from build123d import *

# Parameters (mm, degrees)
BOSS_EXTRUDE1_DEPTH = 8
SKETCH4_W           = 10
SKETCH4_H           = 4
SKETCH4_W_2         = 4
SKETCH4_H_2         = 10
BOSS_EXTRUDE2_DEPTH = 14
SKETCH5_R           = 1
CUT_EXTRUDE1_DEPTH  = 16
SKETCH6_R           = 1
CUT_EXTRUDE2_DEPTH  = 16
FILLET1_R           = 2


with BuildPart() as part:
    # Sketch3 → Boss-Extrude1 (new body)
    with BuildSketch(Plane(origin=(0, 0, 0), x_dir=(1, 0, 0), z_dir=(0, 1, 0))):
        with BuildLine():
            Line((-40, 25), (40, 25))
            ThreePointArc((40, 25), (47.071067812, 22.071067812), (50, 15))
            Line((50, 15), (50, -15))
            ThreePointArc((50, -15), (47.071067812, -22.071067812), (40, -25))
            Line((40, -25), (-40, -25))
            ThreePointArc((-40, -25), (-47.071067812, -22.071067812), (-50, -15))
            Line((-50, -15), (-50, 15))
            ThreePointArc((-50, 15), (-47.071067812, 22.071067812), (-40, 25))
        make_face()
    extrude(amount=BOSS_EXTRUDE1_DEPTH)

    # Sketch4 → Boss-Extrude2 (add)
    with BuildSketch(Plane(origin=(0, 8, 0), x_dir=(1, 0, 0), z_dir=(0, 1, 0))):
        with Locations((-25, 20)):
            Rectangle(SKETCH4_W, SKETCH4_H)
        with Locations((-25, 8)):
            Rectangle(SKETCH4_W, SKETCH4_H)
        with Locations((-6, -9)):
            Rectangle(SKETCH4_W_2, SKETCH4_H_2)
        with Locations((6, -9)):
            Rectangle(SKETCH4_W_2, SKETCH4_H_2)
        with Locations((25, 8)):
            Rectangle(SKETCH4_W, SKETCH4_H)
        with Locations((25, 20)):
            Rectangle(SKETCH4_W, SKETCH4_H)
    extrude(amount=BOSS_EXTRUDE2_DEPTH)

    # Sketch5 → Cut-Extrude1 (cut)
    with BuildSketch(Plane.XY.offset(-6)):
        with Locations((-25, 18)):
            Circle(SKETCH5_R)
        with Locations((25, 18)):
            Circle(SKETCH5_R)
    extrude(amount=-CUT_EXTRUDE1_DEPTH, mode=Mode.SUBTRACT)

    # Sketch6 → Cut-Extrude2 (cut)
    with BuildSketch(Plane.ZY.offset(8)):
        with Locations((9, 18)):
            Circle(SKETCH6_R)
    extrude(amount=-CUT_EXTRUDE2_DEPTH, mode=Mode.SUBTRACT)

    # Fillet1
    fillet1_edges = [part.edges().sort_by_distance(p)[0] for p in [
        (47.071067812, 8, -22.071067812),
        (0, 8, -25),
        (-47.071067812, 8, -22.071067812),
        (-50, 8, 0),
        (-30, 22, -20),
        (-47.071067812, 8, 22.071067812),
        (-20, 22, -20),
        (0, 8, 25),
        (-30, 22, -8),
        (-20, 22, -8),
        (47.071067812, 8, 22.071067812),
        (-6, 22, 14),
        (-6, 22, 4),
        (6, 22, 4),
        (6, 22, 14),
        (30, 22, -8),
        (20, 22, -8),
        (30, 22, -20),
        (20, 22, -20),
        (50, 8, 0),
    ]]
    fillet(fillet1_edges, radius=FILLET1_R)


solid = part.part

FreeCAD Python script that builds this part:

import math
import FreeCAD as App
import Part
import Sketcher


def edges_at(feature, points):
    """Names of the edges that pass closest to the given points."""
    edges = feature.Shape.Edges
    near = lambda p: min(range(len(edges)), key=lambda i: edges[i].distToShape(Part.Vertex(*p))[0])
    return sorted({f"Edge{near(p) + 1}" for p in points})

doc = App.newDocument("Part")
params = doc.addObject("Spreadsheet::Sheet", "Params")
for row, (alias, value) in enumerate([
    ("sketch1_radius", "10 mm"),
    ("sketch1_width", "80 mm"),
    ("sketch1_height", "30 mm"),
    ("pad1_length", "8 mm"),
    ("sketch2_width", "10 mm"),
    ("sketch2_width2", "4 mm"),
    ("pad2_length", "14 mm"),
    ("sketch3_diameter", "2 mm"),
    ("pocket1_length", "16 mm"),
    ("sketch4_diameter", "2 mm"),
    ("pocket2_length", "16 mm"),
    ("fillet_radius", "2 mm"),
], start=1):
    params.set(f"A{row}", alias)
    params.set(f"B{row}", "=" + value)
    params.setAlias(f"B{row}", alias)

body = doc.addObject("PartDesign::Body", "Body")

# Sketch on XZ plane
sketch1 = body.newObject("Sketcher::SketchObject", "Sketch")
sketch1.AttachmentSupport = (doc.getObject("XZ_Plane"), [""])
sketch1.MapMode = "FlatFace"
sketch1.addGeometry(Part.LineSegment(App.Vector(40, -25, 0), App.Vector(-40, -25, 0)), False)
sketch1.addGeometry(Part.ArcOfCircle(Part.Circle(App.Vector(-40, -15, 0), App.Vector(0, 0, 1), 10), math.radians(180), math.radians(270)), False)
sketch1.addGeometry(Part.LineSegment(App.Vector(-50, -15, 0), App.Vector(-50, 15, 0)), False)
sketch1.addGeometry(Part.ArcOfCircle(Part.Circle(App.Vector(-40, 15, 0), App.Vector(0, 0, 1), 10), math.radians(90), math.radians(180)), False)
sketch1.addGeometry(Part.LineSegment(App.Vector(-40, 25, 0), App.Vector(40, 25, 0)), False)
sketch1.addGeometry(Part.ArcOfCircle(Part.Circle(App.Vector(40, 15, 0), App.Vector(0, 0, 1), 10), math.radians(0), math.radians(90)), False)
sketch1.addGeometry(Part.LineSegment(App.Vector(50, 15, 0), App.Vector(50, -15, 0)), False)
sketch1.addGeometry(Part.ArcOfCircle(Part.Circle(App.Vector(40, -15, 0), App.Vector(0, 0, 1), 10), math.radians(-90), math.radians(0)), False)
sketch1.addConstraint(Sketcher.Constraint("Tangent", 0, 2, 1, 2))
sketch1.addConstraint(Sketcher.Constraint("Tangent", 1, 1, 2, 1))
sketch1.addConstraint(Sketcher.Constraint("Tangent", 2, 2, 3, 2))
sketch1.addConstraint(Sketcher.Constraint("Tangent", 3, 1, 4, 1))
sketch1.addConstraint(Sketcher.Constraint("Tangent", 4, 2, 5, 2))
sketch1.addConstraint(Sketcher.Constraint("Tangent", 5, 1, 6, 1))
sketch1.addConstraint(Sketcher.Constraint("Tangent", 6, 2, 7, 2))
sketch1.addConstraint(Sketcher.Constraint("Tangent", 7, 1, 0, 1))
sketch1.addConstraint(Sketcher.Constraint("Horizontal", 0))
sketch1.addConstraint(Sketcher.Constraint("Vertical", 2))
sketch1.addConstraint(Sketcher.Constraint("Horizontal", 4))
sketch1.addConstraint(Sketcher.Constraint("Vertical", 6))
sketch1.addConstraint(Sketcher.Constraint("Equal", 1, 3))
sketch1.addConstraint(Sketcher.Constraint("Equal", 3, 5))
sketch1.addConstraint(Sketcher.Constraint("Equal", 5, 7))
sketch1.addConstraint(Sketcher.Constraint("Symmetric", 1, 3, 5, 3, -1, 1))
sketch1.addConstraint(Sketcher.Constraint("Radius", 1, 10.0))
sketch1.addConstraint(Sketcher.Constraint("DistanceX", 0, 2, 0, 1, 80.0))
sketch1.addConstraint(Sketcher.Constraint("DistanceY", 2, 1, 2, 2, 30.0))
sketch1.setExpression("Constraints[16]", "Params.sketch1_radius")
sketch1.setExpression("Constraints[17]", "Params.sketch1_width")
sketch1.setExpression("Constraints[18]", "Params.sketch1_height")
pad1 = body.newObject("PartDesign::Pad", "Pad")
pad1.Profile = sketch1
pad1.setExpression("Length", "Params.pad1_length")
pad1.Reversed = True

# Sketch on XZ plane
sketch2 = body.newObject("Sketcher::SketchObject", "Sketch001")
sketch2.AttachmentSupport = (doc.getObject("XZ_Plane"), [""])
sketch2.MapMode = "FlatFace"
sketch2.AttachmentOffset = App.Placement(App.Vector(0, 0, -8), App.Rotation())
sketch2.addGeometry(Part.LineSegment(App.Vector(-30, -22, 0), App.Vector(-30, -18, 0)), False)
sketch2.addGeometry(Part.LineSegment(App.Vector(-30, -18, 0), App.Vector(-20, -18, 0)), False)
sketch2.addGeometry(Part.LineSegment(App.Vector(-20, -18, 0), App.Vector(-20, -22, 0)), False)
sketch2.addGeometry(Part.LineSegment(App.Vector(-20, -22, 0), App.Vector(-30, -22, 0)), False)
sketch2.addGeometry(Part.LineSegment(App.Vector(-30, -10, 0), App.Vector(-30, -6, 0)), False)
sketch2.addGeometry(Part.LineSegment(App.Vector(-30, -6, 0), App.Vector(-20, -6, 0)), False)
sketch2.addGeometry(Part.LineSegment(App.Vector(-20, -6, 0), App.Vector(-20, -10, 0)), False)
sketch2.addGeometry(Part.LineSegment(App.Vector(-20, -10, 0), App.Vector(-30, -10, 0)), False)
sketch2.addGeometry(Part.LineSegment(App.Vector(-8, 4, 0), App.Vector(-8, 14, 0)), False)
sketch2.addGeometry(Part.LineSegment(App.Vector(-8, 14, 0), App.Vector(-4, 14, 0)), False)
sketch2.addGeometry(Part.LineSegment(App.Vector(-4, 14, 0), App.Vector(-4, 4, 0)), False)
sketch2.addGeometry(Part.LineSegment(App.Vector(-4, 4, 0), App.Vector(-8, 4, 0)), False)
sketch2.addGeometry(Part.LineSegment(App.Vector(4, 4, 0), App.Vector(4, 14, 0)), False)
sketch2.addGeometry(Part.LineSegment(App.Vector(4, 14, 0), App.Vector(8, 14, 0)), False)
sketch2.addGeometry(Part.LineSegment(App.Vector(8, 14, 0), App.Vector(8, 4, 0)), False)
sketch2.addGeometry(Part.LineSegment(App.Vector(8, 4, 0), App.Vector(4, 4, 0)), False)
sketch2.addGeometry(Part.LineSegment(App.Vector(20, -10, 0), App.Vector(20, -6, 0)), False)
sketch2.addGeometry(Part.LineSegment(App.Vector(20, -6, 0), App.Vector(30, -6, 0)), False)
sketch2.addGeometry(Part.LineSegment(App.Vector(30, -6, 0), App.Vector(30, -10, 0)), False)
sketch2.addGeometry(Part.LineSegment(App.Vector(30, -10, 0), App.Vector(20, -10, 0)), False)
sketch2.addGeometry(Part.LineSegment(App.Vector(20, -22, 0), App.Vector(20, -18, 0)), False)
sketch2.addGeometry(Part.LineSegment(App.Vector(20, -18, 0), App.Vector(30, -18, 0)), False)
sketch2.addGeometry(Part.LineSegment(App.Vector(30, -18, 0), App.Vector(30, -22, 0)), False)
sketch2.addGeometry(Part.LineSegment(App.Vector(30, -22, 0), App.Vector(20, -22, 0)), False)
sketch2.addConstraint(Sketcher.Constraint("Coincident", 0, 2, 1, 1))
sketch2.addConstraint(Sketcher.Constraint("Coincident", 1, 2, 2, 1))
sketch2.addConstraint(Sketcher.Constraint("Coincident", 2, 2, 3, 1))
sketch2.addConstraint(Sketcher.Constraint("Coincident", 3, 2, 0, 1))
sketch2.addConstraint(Sketcher.Constraint("Coincident", 4, 2, 5, 1))
sketch2.addConstraint(Sketcher.Constraint("Coincident", 5, 2, 6, 1))
sketch2.addConstraint(Sketcher.Constraint("Coincident", 6, 2, 7, 1))
sketch2.addConstraint(Sketcher.Constraint("Coincident", 7, 2, 4, 1))
sketch2.addConstraint(Sketcher.Constraint("Coincident", 8, 2, 9, 1))
sketch2.addConstraint(Sketcher.Constraint("Coincident", 9, 2, 10, 1))
sketch2.addConstraint(Sketcher.Constraint("Coincident", 10, 2, 11, 1))
sketch2.addConstraint(Sketcher.Constraint("Coincident", 11, 2, 8, 1))
sketch2.addConstraint(Sketcher.Constraint("Coincident", 12, 2, 13, 1))
sketch2.addConstraint(Sketcher.Constraint("Coincident", 13, 2, 14, 1))
sketch2.addConstraint(Sketcher.Constraint("Coincident", 14, 2, 15, 1))
sketch2.addConstraint(Sketcher.Constraint("Coincident", 15, 2, 12, 1))
sketch2.addConstraint(Sketcher.Constraint("Coincident", 16, 2, 17, 1))
sketch2.addConstraint(Sketcher.Constraint("Coincident", 17, 2, 18, 1))
sketch2.addConstraint(Sketcher.Constraint("Coincident", 18, 2, 19, 1))
sketch2.addConstraint(Sketcher.Constraint("Coincident", 19, 2, 16, 1))
sketch2.addConstraint(Sketcher.Constraint("Coincident", 20, 2, 21, 1))
sketch2.addConstraint(Sketcher.Constraint("Coincident", 21, 2, 22, 1))
sketch2.addConstraint(Sketcher.Constraint("Coincident", 22, 2, 23, 1))
sketch2.addConstraint(Sketcher.Constraint("Coincident", 23, 2, 20, 1))
sketch2.addConstraint(Sketcher.Constraint("Vertical", 0))
sketch2.addConstraint(Sketcher.Constraint("Horizontal", 1))
sketch2.addConstraint(Sketcher.Constraint("Vertical", 2))
sketch2.addConstraint(Sketcher.Constraint("Horizontal", 3))
sketch2.addConstraint(Sketcher.Constraint("Vertical", 4))
sketch2.addConstraint(Sketcher.Constraint("Horizontal", 5))
sketch2.addConstraint(Sketcher.Constraint("Vertical", 6))
sketch2.addConstraint(Sketcher.Constraint("Horizontal", 7))
sketch2.addConstraint(Sketcher.Constraint("Vertical", 8))
sketch2.addConstraint(Sketcher.Constraint("Horizontal", 9))
sketch2.addConstraint(Sketcher.Constraint("Vertical", 10))
sketch2.addConstraint(Sketcher.Constraint("Horizontal", 11))
sketch2.addConstraint(Sketcher.Constraint("Vertical", 12))
sketch2.addConstraint(Sketcher.Constraint("Horizontal", 13))
sketch2.addConstraint(Sketcher.Constraint("Vertical", 14))
sketch2.addConstraint(Sketcher.Constraint("Horizontal", 15))
sketch2.addConstraint(Sketcher.Constraint("Vertical", 16))
sketch2.addConstraint(Sketcher.Constraint("Horizontal", 17))
sketch2.addConstraint(Sketcher.Constraint("Vertical", 18))
sketch2.addConstraint(Sketcher.Constraint("Horizontal", 19))
sketch2.addConstraint(Sketcher.Constraint("Vertical", 20))
sketch2.addConstraint(Sketcher.Constraint("Horizontal", 21))
sketch2.addConstraint(Sketcher.Constraint("Vertical", 22))
sketch2.addConstraint(Sketcher.Constraint("Horizontal", 23))
sketch2.addConstraint(Sketcher.Constraint("Symmetric", 9, 2, 12, 2, -2))
sketch2.addConstraint(Sketcher.Constraint("Symmetric", 11, 2, 14, 2, -2))
sketch2.addConstraint(Sketcher.Constraint("Symmetric", 5, 2, 16, 2, -2))
sketch2.addConstraint(Sketcher.Constraint("Symmetric", 7, 2, 18, 2, -2))
sketch2.addConstraint(Sketcher.Constraint("Symmetric", 1, 2, 20, 2, -2))
sketch2.addConstraint(Sketcher.Constraint("Symmetric", 3, 2, 22, 2, -2))
sketch2.addConstraint(Sketcher.Constraint("Vertical", 3, 2, 4, 2))
sketch2.addConstraint(Sketcher.Constraint("Vertical", 2, 2, 5, 2))
sketch2.addConstraint(Sketcher.Constraint("Equal", 15, 0))
sketch2.addConstraint(Sketcher.Constraint("Equal", 2, 4))
sketch2.addConstraint(Sketcher.Constraint("Equal", 23, 8))
sketch2.addConstraint(Sketcher.Constraint("DistanceX", 1, 1, 1, 2, 10.0))
sketch2.addConstraint(Sketcher.Constraint("DistanceX", 9, 1, 9, 2, 4.0))
sketch2.addConstraint(Sketcher.Constraint("DistanceX", 0, 2, -1, 1, 30.0))
sketch2.addConstraint(Sketcher.Constraint("DistanceY", 0, 2, -1, 1, 18.0))
sketch2.addConstraint(Sketcher.Constraint("DistanceY", 4, 2, -1, 1, 6.0))
sketch2.addConstraint(Sketcher.Constraint("DistanceX", 8, 2, -1, 1, 8.0))
sketch2.addConstraint(Sketcher.Constraint("DistanceY", -1, 1, 8, 2, 14.0))
sketch2.setExpression("Constraints[59]", "Params.sketch2_width")
sketch2.setExpression("Constraints[60]", "Params.sketch2_width2")
pad2 = body.newObject("PartDesign::Pad", "Pad001")
pad2.Profile = sketch2
pad2.setExpression("Length", "Params.pad2_length")
pad2.Reversed = True

# Sketch on XY plane
sketch3 = body.newObject("Sketcher::SketchObject", "Sketch002")
sketch3.AttachmentSupport = (doc.getObject("XY_Plane"), [""])
sketch3.MapMode = "FlatFace"
sketch3.AttachmentOffset = App.Placement(App.Vector(0, 0, -6), App.Rotation())
sketch3.addGeometry(Part.Circle(App.Vector(-25, 18, 0), App.Vector(0, 0, 1), 1), False)
sketch3.addGeometry(Part.Circle(App.Vector(25, 18, 0), App.Vector(0, 0, 1), 1), False)
sketch3.addConstraint(Sketcher.Constraint("Equal", 0, 1))
sketch3.addConstraint(Sketcher.Constraint("Symmetric", 0, 3, 1, 3, -2))
sketch3.addConstraint(Sketcher.Constraint("Diameter", 0, 2.0))
sketch3.addConstraint(Sketcher.Constraint("DistanceX", 0, 3, -1, 1, 25.0))
sketch3.addConstraint(Sketcher.Constraint("DistanceY", -1, 1, 0, 3, 18.0))
sketch3.setExpression("Constraints[2]", "Params.sketch3_diameter")
pocket1 = body.newObject("PartDesign::Pocket", "Pocket")
pocket1.Profile = sketch3
pocket1.setExpression("Length", "Params.pocket1_length")

# Sketch on YZ plane
sketch4 = body.newObject("Sketcher::SketchObject", "Sketch003")
sketch4.AttachmentSupport = (doc.getObject("YZ_Plane"), [""])
sketch4.MapMode = "FlatFace"
sketch4.AttachmentOffset = App.Placement(App.Vector(0, 0, -8), App.Rotation())
sketch4.addGeometry(Part.Circle(App.Vector(18, 9, 0), App.Vector(0, 0, 1), 1), False)
sketch4.addConstraint(Sketcher.Constraint("Diameter", 0, 2.0))
sketch4.addConstraint(Sketcher.Constraint("DistanceX", -1, 1, 0, 3, 18.0))
sketch4.addConstraint(Sketcher.Constraint("DistanceY", -1, 1, 0, 3, 9.0))
sketch4.setExpression("Constraints[0]", "Params.sketch4_diameter")
pocket2 = body.newObject("PartDesign::Pocket", "Pocket001")
pocket2.Profile = sketch4
pocket2.setExpression("Length", "Params.pocket2_length")
pocket2.Reversed = True
doc.recompute()

fillet = body.newObject("PartDesign::Fillet", "Fillet")
fillet.Base = (pocket2, edges_at(pocket2, [
    (47.071, 8, -22.071),
    (0, 8, -25),
    (-47.071, 8, -22.071),
    (-50, 8, 0),
    (-30, 22, -20),
    (-47.071, 8, 22.071),
    (-20, 22, -20),
    (0, 8, 25),
    (-30, 22, -8),
    (-20, 22, -8),
    (47.071, 8, 22.071),
    (-6, 22, 14),
    (-6, 22, 4),
    (6, 22, 4),
    (6, 22, 14),
    (30, 22, -8),
    (20, 22, -8),
    (30, 22, -20),
    (20, 22, -20),
    (50, 8, 0),
]))
fillet.setExpression("Radius", "Params.fillet_radius")

doc.recompute()
